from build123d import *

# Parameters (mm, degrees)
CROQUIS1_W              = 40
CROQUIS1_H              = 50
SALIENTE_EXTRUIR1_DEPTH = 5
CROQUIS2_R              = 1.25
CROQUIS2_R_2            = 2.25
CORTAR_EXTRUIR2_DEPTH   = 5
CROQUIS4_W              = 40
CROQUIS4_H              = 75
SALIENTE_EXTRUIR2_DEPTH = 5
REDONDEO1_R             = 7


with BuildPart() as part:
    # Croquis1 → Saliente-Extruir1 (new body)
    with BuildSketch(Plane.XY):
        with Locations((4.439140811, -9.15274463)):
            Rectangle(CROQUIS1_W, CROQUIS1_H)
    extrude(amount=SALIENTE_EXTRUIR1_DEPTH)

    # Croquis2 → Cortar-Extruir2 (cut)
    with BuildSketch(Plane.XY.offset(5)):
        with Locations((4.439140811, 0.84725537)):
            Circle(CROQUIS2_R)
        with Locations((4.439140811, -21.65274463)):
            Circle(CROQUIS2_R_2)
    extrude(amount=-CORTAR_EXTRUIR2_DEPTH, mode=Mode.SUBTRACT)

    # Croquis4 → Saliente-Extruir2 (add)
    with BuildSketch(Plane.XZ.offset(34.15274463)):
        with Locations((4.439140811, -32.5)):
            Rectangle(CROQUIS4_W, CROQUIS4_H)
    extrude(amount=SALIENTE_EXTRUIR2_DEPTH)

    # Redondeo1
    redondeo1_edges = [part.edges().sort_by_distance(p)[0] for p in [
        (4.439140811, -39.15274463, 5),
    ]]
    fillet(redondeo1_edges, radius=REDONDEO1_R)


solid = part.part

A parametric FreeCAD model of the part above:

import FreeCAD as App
import Part
import Sketcher
Q = App.Units.Quantity


def edges_at(feature, points):
    """Names of the edges that pass closest to the given points."""
    edges = feature.Shape.Edges
    near = lambda p: min(range(len(edges)), key=lambda i: edges[i].distToShape(Part.Vertex(*p))[0])
    return sorted({f"Edge{near(p) + 1}" for p in points})

doc = App.newDocument("Part")
body = doc.addObject("PartDesign::Body", "Body")

# Sketch on XY plane
sketch1 = body.newObject("Sketcher::SketchObject", "Sketch")
sketch1.AttachmentSupport = (doc.getObject("XY_Plane"), [""])
sketch1.MapMode = "FlatFace"
sketch1.addGeometry(Part.LineSegment(App.Vector(-16, 16, 0), App.Vector(-16, -34, 0)), False)
sketch1.addGeometry(Part.LineSegment(App.Vector(-16, -34, 0), App.Vector(24, -34, 0)), False)
sketch1.addGeometry(Part.LineSegment(App.Vector(24, -34, 0), App.Vector(24, 16, 0)), False)
sketch1.addGeometry(Part.LineSegment(App.Vector(24, 16, 0), App.Vector(-16, 16, 0)), False)
sketch1.addConstraint(Sketcher.Constraint("Coincident", 0, 2, 1, 1))
sketch1.addConstraint(Sketcher.Constraint("Coincident", 1, 2, 2, 1))
sketch1.addConstraint(Sketcher.Constraint("Coincident", 2, 2, 3, 1))
sketch1.addConstraint(Sketcher.Constraint("Coincident", 3, 2, 0, 1))
sketch1.addConstraint(Sketcher.Constraint("Vertical", 0))
sketch1.addConstraint(Sketcher.Constraint("Horizontal", 1))
sketch1.addConstraint(Sketcher.Constraint("Vertical", 2))
sketch1.addConstraint(Sketcher.Constraint("Horizontal", 3))
sketch1.addConstraint(Sketcher.Constraint("DistanceX", 1, 1, 1, 2, Q("40 mm")))
sketch1.addConstraint(Sketcher.Constraint("DistanceY", 0, 2, 0, 1, Q("50 mm")))
sketch1.addConstraint(Sketcher.Constraint("DistanceX", 0, 2, -1, 1, Q("15.560859 mm")))
sketch1.addConstraint(Sketcher.Constraint("DistanceY", 0, 2, -1, 1, Q("34.152745 mm")))
pad1 = body.newObject("PartDesign::Pad", "Pad")
pad1.Profile = sketch1
pad1.Length = 5

# Sketch on XY plane
sketch2 = body.newObject("Sketcher::SketchObject", "Sketch001")
sketch2.AttachmentSupport = (doc.getObject("XY_Plane"), [""])
sketch2.MapMode = "FlatFace"
sketch2.AttachmentOffset = App.Placement(App.Vector(0, 0, 5), App.Rotation())
sketch2.addGeometry(Part.Circle(App.Vector(4.4, 0.8, 0), App.Vector(0, 0, 1), 1.2), False)
sketch2.addGeometry(Part.Circle(App.Vector(4.4, -21.7, 0), App.Vector(0, 0, 1), 2.2), False)
sketch2.addConstraint(Sketcher.Constraint("Vertical", 0, 3, 1, 3))
sketch2.addConstraint(Sketcher.Constraint("Diameter", 0, Q("2.5 mm")))
sketch2.addConstraint(Sketcher.Constraint("Diameter", 1, Q("4.5 mm")))
sketch2.addConstraint(Sketcher.Constraint("DistanceY", 1, 3, 0, 3, Q("22.5 mm")))
sketch2.addConstraint(Sketcher.Constraint("DistanceX", -1, 1, 0, 3, Q("4.439141 mm")))
sketch2.addConstraint(Sketcher.Constraint("DistanceY", -1, 1, 0, 3, Q("0.847255 mm")))
pocket1 = body.newObject("PartDesign::Pocket", "Pocket")
pocket1.Profile = sketch2
pocket1.Length = 5

# Sketch on XZ plane
sketch3 = body.newObject("Sketcher::SketchObject", "Sketch002")
sketch3.AttachmentSupport = (doc.getObject("XZ_Plane"), [""])
sketch3.MapMode = "FlatFace"
sketch3.AttachmentOffset = App.Placement(App.Vector(0, 0, 34.152745), App.Rotation())
sketch3.addGeometry(Part.LineSegment(App.Vector(-16, 5, 0), App.Vector(-16, -70, 0)), False)
sketch3.addGeometry(Part.LineSegment(App.Vector(-16, -70, 0), App.Vector(24, -70, 0)), False)
sketch3.addGeometry(Part.LineSegment(App.Vector(24, -70, 0), App.Vector(24, 5, 0)), False)
sketch3.addGeometry(Part.LineSegment(App.Vector(24, 5, 0), App.Vector(-16, 5, 0)), False)
sketch3.addConstraint(Sketcher.Constraint("Coincident", 0, 2, 1, 1))
sketch3.addConstraint(Sketcher.Constraint("Coincident", 1, 2, 2, 1))
sketch3.addConstraint(Sketcher.Constraint("Coincident", 2, 2, 3, 1))
sketch3.addConstraint(Sketcher.Constraint("Coincident", 3, 2, 0, 1))
sketch3.addConstraint(Sketcher.Constraint("Vertical", 0))
sketch3.addConstraint(Sketcher.Constraint("Horizontal", 1))
sketch3.addConstraint(Sketcher.Constraint("Vertical", 2))
sketch3.addConstraint(Sketcher.Constraint("Horizontal", 3))
sketch3.addConstraint(Sketcher.Constraint("DistanceX", 1, 1, 1, 2, Q("40 mm")))
sketch3.addConstraint(Sketcher.Constraint("DistanceY", 0, 2, 0, 1, Q("75 mm")))
sketch3.addConstraint(Sketcher.Constraint("DistanceY", 0, 2, -1, 1, Q("70 mm")))
sketch3.addConstraint(Sketcher.Constraint("DistanceX", 0, 2, -1, 1, Q("15.560859 mm")))
pad2 = body.newObject("PartDesign::Pad", "Pad001")
pad2.Profile = sketch3
pad2.Length = 5
doc.recompute()

fillet = body.newObject("PartDesign::Fillet", "Fillet")
fillet.Base = (pad2, edges_at(pad2, [(4.439, -39.153, 5)]))
fillet.Radius = 7

doc.recompute()
